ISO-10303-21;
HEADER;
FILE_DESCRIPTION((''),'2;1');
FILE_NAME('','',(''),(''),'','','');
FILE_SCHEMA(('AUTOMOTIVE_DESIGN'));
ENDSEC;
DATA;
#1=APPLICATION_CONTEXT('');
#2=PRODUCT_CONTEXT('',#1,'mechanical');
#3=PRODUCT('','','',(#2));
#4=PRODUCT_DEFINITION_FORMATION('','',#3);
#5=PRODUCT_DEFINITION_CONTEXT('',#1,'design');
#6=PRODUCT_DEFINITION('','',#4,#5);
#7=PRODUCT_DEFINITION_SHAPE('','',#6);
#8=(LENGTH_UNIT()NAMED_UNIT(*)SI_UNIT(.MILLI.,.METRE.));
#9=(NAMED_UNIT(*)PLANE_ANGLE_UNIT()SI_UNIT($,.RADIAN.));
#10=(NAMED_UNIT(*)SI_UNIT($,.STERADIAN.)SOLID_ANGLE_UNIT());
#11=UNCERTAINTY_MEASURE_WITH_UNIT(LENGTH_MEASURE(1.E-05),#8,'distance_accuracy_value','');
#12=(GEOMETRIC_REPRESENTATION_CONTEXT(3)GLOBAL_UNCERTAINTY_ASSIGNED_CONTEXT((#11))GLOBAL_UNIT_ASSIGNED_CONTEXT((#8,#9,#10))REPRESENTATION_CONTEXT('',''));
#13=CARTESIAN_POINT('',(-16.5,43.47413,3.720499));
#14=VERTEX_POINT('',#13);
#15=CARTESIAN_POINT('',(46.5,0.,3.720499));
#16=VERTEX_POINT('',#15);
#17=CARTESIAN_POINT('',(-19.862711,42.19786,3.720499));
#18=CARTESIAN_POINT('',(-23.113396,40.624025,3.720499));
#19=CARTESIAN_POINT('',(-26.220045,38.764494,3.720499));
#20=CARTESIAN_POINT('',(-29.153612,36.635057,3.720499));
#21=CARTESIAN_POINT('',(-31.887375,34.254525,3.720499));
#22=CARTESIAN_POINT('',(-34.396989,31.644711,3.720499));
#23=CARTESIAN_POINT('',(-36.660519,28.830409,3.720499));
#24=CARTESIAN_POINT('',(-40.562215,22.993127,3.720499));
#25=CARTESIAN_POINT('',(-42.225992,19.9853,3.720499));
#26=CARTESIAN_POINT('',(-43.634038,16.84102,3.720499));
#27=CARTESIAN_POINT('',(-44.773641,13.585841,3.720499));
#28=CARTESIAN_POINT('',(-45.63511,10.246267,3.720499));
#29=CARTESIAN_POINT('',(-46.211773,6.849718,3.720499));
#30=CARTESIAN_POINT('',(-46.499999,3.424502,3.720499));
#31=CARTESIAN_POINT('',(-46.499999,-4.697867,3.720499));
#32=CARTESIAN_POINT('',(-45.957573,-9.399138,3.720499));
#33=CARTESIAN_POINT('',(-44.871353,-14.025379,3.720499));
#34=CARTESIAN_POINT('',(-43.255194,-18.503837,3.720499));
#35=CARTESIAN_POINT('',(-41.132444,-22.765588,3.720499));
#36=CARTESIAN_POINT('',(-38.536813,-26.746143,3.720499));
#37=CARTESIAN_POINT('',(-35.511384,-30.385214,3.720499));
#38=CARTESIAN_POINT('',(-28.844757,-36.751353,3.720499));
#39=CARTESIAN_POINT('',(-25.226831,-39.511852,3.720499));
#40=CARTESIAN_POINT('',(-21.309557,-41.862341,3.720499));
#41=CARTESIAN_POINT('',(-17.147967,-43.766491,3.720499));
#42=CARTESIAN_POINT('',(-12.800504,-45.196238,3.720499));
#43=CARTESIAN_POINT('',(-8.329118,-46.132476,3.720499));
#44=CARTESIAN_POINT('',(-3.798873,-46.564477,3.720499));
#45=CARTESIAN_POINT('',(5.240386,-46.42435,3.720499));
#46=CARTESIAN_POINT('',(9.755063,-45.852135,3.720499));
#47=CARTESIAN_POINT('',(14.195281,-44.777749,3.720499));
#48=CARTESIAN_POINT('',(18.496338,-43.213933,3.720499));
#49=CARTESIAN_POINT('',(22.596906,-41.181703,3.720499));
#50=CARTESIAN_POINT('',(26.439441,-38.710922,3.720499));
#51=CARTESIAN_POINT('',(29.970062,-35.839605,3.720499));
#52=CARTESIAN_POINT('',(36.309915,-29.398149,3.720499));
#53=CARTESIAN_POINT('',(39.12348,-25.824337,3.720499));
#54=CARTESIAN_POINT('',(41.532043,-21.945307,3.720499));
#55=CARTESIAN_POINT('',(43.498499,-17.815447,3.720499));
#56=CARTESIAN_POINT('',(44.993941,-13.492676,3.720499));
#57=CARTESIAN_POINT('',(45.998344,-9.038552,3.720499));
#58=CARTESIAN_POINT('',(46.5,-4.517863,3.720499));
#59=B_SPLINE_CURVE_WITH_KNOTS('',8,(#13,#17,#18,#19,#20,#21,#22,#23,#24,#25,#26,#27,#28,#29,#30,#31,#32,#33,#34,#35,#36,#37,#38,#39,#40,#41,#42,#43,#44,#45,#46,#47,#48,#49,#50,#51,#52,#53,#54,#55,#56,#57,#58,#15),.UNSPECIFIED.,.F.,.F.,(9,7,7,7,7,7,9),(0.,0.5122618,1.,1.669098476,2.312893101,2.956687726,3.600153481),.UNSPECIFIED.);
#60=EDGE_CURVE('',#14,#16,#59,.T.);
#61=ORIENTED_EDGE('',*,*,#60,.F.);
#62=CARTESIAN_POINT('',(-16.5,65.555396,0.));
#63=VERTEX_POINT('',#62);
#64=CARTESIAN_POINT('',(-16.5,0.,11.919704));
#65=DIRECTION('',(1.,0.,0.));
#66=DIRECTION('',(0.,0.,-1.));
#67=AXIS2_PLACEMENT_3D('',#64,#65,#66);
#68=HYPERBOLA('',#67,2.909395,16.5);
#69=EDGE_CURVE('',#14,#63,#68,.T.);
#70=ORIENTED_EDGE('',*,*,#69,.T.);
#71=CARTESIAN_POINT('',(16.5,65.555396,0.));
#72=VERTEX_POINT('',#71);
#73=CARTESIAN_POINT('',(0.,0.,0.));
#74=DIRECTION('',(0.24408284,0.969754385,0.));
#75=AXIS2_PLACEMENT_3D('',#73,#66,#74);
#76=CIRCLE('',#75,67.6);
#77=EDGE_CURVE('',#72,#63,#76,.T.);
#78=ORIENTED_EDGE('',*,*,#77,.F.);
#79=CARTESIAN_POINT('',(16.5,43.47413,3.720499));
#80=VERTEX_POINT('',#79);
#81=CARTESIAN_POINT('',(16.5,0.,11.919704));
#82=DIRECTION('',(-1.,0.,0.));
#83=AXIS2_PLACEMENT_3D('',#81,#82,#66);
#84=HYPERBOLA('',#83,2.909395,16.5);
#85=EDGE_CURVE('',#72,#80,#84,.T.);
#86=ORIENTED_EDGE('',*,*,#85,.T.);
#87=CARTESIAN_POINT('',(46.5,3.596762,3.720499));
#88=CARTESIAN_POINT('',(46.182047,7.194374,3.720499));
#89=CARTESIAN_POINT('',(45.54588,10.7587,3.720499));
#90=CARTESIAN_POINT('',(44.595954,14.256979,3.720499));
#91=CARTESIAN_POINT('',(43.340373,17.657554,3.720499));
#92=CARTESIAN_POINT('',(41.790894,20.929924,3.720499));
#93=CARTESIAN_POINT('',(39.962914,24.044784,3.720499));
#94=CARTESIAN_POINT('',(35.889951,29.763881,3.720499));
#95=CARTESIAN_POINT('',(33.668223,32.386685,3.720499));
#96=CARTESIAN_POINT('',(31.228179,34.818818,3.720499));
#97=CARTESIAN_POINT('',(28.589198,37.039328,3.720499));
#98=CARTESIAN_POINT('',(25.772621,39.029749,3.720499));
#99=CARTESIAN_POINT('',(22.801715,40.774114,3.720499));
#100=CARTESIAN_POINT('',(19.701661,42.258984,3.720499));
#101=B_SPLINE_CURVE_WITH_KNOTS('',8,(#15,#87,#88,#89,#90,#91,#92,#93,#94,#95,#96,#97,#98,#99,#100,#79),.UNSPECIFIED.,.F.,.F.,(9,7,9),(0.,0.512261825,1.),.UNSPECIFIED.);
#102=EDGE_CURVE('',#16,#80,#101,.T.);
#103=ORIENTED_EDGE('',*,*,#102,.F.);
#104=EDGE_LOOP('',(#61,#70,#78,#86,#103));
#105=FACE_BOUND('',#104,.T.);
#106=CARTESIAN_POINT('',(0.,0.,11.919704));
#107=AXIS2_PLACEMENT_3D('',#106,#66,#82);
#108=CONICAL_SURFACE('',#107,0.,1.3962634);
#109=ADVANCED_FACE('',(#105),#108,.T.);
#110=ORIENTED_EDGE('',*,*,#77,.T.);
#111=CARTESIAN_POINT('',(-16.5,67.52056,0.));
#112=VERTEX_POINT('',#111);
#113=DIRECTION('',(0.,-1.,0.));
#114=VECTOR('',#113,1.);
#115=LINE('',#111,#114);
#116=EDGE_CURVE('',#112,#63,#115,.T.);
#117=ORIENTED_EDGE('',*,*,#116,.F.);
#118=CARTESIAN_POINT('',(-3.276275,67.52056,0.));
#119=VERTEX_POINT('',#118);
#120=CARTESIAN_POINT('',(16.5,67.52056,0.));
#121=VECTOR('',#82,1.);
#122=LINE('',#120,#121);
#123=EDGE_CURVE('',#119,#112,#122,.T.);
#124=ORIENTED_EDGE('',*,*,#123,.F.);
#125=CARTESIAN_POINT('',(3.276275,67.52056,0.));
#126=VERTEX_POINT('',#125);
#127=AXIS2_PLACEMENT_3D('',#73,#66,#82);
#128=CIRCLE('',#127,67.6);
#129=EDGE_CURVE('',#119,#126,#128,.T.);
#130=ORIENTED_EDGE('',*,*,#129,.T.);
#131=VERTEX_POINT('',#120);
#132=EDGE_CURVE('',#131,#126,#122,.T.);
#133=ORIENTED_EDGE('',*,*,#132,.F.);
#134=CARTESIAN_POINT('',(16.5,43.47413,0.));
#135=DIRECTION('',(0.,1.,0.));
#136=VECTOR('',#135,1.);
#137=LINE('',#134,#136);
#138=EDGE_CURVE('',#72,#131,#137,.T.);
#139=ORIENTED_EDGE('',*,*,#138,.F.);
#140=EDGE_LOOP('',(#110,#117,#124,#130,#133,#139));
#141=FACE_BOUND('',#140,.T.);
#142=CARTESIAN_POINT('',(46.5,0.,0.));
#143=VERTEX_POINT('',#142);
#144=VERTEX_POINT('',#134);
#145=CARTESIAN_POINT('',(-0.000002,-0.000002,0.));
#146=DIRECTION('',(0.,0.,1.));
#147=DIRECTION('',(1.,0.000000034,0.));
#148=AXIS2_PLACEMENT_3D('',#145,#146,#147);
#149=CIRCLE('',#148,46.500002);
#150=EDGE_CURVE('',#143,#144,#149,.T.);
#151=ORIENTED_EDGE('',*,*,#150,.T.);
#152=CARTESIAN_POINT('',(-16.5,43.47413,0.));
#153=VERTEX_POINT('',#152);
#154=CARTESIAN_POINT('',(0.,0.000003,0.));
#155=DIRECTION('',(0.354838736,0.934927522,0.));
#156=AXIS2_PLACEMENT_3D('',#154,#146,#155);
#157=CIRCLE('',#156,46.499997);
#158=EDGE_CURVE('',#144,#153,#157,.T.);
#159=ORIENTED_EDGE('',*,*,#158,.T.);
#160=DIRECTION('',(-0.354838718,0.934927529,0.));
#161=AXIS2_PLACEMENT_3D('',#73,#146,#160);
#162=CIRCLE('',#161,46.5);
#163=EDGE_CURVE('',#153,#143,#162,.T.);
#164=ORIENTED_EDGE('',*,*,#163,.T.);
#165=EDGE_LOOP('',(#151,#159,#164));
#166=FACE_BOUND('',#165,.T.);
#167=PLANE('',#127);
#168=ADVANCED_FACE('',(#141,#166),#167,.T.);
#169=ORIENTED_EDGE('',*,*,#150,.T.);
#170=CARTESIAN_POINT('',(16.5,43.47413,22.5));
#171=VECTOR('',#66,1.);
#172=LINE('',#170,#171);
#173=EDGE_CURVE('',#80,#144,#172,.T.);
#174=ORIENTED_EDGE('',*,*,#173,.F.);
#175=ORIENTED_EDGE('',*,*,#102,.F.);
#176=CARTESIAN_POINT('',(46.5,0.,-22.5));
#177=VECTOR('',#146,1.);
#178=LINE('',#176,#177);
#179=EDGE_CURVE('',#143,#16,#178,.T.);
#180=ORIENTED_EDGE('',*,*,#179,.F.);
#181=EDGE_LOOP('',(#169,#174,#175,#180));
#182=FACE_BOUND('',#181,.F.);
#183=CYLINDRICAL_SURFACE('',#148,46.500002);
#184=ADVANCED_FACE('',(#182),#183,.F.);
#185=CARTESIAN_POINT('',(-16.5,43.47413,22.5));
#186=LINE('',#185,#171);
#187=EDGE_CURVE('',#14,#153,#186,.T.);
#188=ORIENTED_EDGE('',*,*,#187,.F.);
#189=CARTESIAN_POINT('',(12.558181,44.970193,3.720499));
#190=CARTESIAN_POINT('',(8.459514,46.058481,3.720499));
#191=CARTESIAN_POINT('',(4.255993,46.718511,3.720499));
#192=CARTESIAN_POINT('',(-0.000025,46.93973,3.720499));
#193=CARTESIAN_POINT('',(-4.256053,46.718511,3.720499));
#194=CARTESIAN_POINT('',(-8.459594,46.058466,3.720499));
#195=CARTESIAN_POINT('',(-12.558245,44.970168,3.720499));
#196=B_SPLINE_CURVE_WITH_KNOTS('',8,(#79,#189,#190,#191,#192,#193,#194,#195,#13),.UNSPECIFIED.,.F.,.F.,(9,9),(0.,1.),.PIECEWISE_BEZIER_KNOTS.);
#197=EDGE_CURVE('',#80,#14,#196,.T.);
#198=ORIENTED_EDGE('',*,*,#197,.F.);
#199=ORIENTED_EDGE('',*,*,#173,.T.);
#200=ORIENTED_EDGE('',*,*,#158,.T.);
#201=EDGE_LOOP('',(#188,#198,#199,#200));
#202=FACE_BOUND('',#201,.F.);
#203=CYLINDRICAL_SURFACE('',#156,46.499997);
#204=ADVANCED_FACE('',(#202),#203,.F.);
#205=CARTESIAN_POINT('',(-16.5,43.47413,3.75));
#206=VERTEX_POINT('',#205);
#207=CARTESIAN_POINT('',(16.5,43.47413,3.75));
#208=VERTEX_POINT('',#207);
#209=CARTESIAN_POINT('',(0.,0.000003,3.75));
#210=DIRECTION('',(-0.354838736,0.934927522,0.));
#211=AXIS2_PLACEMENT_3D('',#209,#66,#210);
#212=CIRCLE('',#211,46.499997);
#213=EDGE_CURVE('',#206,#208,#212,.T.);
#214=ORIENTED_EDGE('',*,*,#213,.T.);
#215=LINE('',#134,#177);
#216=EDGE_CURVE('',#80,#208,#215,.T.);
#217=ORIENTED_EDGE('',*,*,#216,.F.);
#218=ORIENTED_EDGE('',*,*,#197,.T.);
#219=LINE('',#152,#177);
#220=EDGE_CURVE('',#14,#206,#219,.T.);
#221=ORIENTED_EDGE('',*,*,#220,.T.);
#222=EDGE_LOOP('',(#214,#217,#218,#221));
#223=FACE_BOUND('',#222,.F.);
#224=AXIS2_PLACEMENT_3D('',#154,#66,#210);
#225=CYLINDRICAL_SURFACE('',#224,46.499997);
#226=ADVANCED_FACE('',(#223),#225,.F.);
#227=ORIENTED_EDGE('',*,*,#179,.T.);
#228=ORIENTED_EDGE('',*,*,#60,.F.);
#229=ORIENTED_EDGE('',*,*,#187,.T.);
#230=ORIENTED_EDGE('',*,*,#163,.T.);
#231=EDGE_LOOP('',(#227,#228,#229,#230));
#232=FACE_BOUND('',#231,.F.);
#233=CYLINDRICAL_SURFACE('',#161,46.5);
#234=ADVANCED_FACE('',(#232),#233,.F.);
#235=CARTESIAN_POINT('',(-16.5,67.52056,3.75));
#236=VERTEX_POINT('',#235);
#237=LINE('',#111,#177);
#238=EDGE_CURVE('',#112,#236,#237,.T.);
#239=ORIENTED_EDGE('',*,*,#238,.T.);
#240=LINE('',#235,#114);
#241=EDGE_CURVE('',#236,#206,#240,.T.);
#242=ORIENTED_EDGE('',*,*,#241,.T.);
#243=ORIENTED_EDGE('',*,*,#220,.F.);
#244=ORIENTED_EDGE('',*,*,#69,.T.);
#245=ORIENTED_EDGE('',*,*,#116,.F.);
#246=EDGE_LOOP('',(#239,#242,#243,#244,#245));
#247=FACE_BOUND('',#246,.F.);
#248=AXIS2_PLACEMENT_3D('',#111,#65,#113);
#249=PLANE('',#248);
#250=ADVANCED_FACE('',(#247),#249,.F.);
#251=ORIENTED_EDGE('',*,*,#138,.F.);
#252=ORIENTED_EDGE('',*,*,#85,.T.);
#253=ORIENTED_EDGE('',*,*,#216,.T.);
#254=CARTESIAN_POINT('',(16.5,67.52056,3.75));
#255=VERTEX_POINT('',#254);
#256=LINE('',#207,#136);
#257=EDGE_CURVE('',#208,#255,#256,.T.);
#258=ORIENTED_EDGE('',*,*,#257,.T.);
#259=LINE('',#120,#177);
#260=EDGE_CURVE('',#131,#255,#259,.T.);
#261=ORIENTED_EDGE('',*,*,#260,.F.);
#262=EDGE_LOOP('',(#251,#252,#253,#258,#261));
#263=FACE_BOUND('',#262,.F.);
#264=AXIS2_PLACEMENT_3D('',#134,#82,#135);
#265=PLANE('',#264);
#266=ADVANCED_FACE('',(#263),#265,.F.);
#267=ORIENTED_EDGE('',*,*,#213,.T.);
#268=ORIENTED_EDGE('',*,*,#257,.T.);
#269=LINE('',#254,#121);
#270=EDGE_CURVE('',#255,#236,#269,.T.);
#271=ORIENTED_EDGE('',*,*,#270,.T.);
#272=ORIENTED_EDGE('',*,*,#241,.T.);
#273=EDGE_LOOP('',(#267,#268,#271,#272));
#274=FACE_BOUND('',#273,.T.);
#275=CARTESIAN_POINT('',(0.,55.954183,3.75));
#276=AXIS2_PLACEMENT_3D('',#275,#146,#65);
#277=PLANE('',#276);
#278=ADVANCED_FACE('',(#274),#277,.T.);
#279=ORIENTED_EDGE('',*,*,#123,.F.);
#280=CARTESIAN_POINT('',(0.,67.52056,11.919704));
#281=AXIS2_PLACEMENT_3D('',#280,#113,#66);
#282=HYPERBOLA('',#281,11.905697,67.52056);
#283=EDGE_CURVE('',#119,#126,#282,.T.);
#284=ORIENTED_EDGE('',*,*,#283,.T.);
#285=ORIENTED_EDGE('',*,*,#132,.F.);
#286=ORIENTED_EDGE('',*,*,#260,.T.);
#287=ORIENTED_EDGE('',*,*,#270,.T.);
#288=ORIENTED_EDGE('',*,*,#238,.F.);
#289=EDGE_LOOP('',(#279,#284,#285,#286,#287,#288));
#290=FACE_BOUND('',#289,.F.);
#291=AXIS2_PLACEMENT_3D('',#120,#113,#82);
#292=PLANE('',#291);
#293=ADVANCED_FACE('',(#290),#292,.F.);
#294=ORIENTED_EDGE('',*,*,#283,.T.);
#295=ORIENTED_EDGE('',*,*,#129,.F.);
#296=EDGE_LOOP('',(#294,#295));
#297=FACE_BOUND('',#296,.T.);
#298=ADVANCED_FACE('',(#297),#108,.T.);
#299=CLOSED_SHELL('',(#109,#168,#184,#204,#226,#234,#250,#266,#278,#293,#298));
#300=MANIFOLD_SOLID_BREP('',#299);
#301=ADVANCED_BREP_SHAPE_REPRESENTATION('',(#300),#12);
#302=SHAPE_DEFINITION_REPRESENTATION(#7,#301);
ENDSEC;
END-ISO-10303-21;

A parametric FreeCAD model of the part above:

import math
import FreeCAD as App
import Part
import Sketcher
from FreeCAD import Vector
Q = App.Units.Quantity


def add_polygon(sketch, points):
    """Adds a closed chain of lines whose ends are joined by coincident constraints."""
    first, n = sketch.GeometryCount, len(points)
    for a, b in zip(points, points[1:] + points[:1]):
        sketch.addGeometry(Part.LineSegment(App.Vector(*a, 0), App.Vector(*b, 0)), False)
    for i in range(n):
        sketch.addConstraint(Sketcher.Constraint("Coincident", first + i, 2, first + (i + 1) % n, 1))

doc = App.newDocument("Part")
body = doc.addObject("PartDesign::Body", "Body")

# Sketch on XZ plane
sketch1 = doc.addObject("Sketcher::SketchObject", "Sketch")
body.addObject(sketch1)
sketch1.AttachmentSupport = (doc.XZ_Plane, [""])
sketch1.MapMode = "FlatFace"
add_polygon(sketch1, [(0, 0), (0, 11.919704), (-67.6, 0)])  # lines 0-2
sketch1.addConstraint(Sketcher.Constraint("Vertical", 0))
sketch1.addConstraint(Sketcher.Constraint("Horizontal", 2))
sketch1.addConstraint(Sketcher.Constraint("Coincident", 2, 2, -1, 1))
sketch1.addConstraint(Sketcher.Constraint("Angle", 1, Q("-170 deg")))
sketch1.addConstraint(Sketcher.Constraint("DistanceX", 2, 1, 2, 2, Q("67.6 mm")))
revolution = doc.addObject("PartDesign::Revolution", "Revolution")
body.addObject(revolution)
revolution.Profile = sketch1
revolution.ReferenceAxis = (sketch1, ["V_Axis"])
revolution.Angle = 360

# Sketch on XY plane
sketch2 = doc.addObject("Sketcher::SketchObject", "Sketch001")
body.addObject(sketch2)
sketch2.AttachmentSupport = (doc.XY_Plane, [""])
sketch2.MapMode = "FlatFace"
sketch2.addGeometry(Part.ArcOfCircle(Part.Circle(Vector(0, 0, 0), Vector(0, 0, 1), 46.5), math.radians(110.78356), math.radians(360)), False)
sketch2.addGeometry(Part.ArcOfCircle(Part.Circle(Vector(-0.000002, -0.000002, 0), Vector(0, 0, 1), 46.500002), math.radians(0.000002), math.radians(69.216439)), False)
sketch2.addGeometry(Part.ArcOfCircle(Part.Circle(Vector(0, 0.000003, 0), Vector(0, 0, 1), 46.499997), math.radians(69.216439), math.radians(110.783561)), False)
sketch2.addConstraint(Sketcher.Constraint("Tangent", 0, 2, 1, 1))
sketch2.addConstraint(Sketcher.Constraint("Tangent", 1, 2, 2, 1))
sketch2.addConstraint(Sketcher.Constraint("Tangent", 2, 2, 0, 1))
sketch2.addConstraint(Sketcher.Constraint("Coincident", 0, 3, -1, 1))
sketch2.addConstraint(Sketcher.Constraint("PointOnObject", 0, 2, -1))
sketch2.addConstraint(Sketcher.Constraint("Horizontal", 1, 2, 2, 2))
sketch2.addConstraint(Sketcher.Constraint("Radius", 0, Q("46.5 mm")))
sketch2.addConstraint(Sketcher.Constraint("DistanceX", 1, 2, 0, 2, Q("30 mm")))
pocket1 = doc.addObject("PartDesign::Pocket", "Pocket")
body.addObject(pocket1)
pocket1.Profile = sketch2
pocket1.Length = 45
pocket1.Midplane = True

# Sketch on XY plane
sketch3 = doc.addObject("Sketcher::SketchObject", "Sketch002")
body.addObject(sketch3)
sketch3.AttachmentSupport = (doc.XY_Plane, [""])
sketch3.MapMode = "FlatFace"
sketch3.addGeometry(Part.ArcOfCircle(Part.Circle(Vector(0, 0.000003, 0), Vector(0, 0, 1), 46.499997), math.radians(69.216439), math.radians(110.783561)), False)
sketch3.addGeometry(Part.LineSegment(Vector(16.5, 43.47413, 0), Vector(16.5, 67.52056, 0)), False)
sketch3.addGeometry(Part.LineSegment(Vector(16.5, 67.52056, 0), Vector(-16.5, 67.52056, 0)), False)
sketch3.addGeometry(Part.LineSegment(Vector(-16.5, 67.52056, 0), Vector(-16.5, 43.47413, 0)), False)
sketch3.addConstraint(Sketcher.Constraint("Coincident", 0, 1, 1, 1))
sketch3.addConstraint(Sketcher.Constraint("Coincident", 1, 2, 2, 1))
sketch3.addConstraint(Sketcher.Constraint("Coincident", 2, 2, 3, 1))
sketch3.addConstraint(Sketcher.Constraint("Coincident", 3, 2, 0, 2))
sketch3.addConstraint(Sketcher.Constraint("Vertical", 1))
sketch3.addConstraint(Sketcher.Constraint("Horizontal", 2))
sketch3.addConstraint(Sketcher.Constraint("Vertical", 3))
sketch3.addConstraint(Sketcher.Constraint("Coincident", 0, 3, -1, 1))
sketch3.addConstraint(Sketcher.Constraint("Horizontal", 0, 1, 3, 2))
sketch3.addConstraint(Sketcher.Constraint("DistanceX", 2, 2, 2, 1, Q("33 mm")))
sketch3.addConstraint(Sketcher.Constraint("Radius", 0, Q("46.499997 mm")))
sketch3.addConstraint(Sketcher.Constraint("DistanceY", 1, 1, 1, 2, Q("24.04643 mm")))
pad1 = doc.addObject("PartDesign::Pad", "Pad")
body.addObject(pad1)
pad1.Profile = sketch3
pad1.Length = 3.75

doc.recompute()
